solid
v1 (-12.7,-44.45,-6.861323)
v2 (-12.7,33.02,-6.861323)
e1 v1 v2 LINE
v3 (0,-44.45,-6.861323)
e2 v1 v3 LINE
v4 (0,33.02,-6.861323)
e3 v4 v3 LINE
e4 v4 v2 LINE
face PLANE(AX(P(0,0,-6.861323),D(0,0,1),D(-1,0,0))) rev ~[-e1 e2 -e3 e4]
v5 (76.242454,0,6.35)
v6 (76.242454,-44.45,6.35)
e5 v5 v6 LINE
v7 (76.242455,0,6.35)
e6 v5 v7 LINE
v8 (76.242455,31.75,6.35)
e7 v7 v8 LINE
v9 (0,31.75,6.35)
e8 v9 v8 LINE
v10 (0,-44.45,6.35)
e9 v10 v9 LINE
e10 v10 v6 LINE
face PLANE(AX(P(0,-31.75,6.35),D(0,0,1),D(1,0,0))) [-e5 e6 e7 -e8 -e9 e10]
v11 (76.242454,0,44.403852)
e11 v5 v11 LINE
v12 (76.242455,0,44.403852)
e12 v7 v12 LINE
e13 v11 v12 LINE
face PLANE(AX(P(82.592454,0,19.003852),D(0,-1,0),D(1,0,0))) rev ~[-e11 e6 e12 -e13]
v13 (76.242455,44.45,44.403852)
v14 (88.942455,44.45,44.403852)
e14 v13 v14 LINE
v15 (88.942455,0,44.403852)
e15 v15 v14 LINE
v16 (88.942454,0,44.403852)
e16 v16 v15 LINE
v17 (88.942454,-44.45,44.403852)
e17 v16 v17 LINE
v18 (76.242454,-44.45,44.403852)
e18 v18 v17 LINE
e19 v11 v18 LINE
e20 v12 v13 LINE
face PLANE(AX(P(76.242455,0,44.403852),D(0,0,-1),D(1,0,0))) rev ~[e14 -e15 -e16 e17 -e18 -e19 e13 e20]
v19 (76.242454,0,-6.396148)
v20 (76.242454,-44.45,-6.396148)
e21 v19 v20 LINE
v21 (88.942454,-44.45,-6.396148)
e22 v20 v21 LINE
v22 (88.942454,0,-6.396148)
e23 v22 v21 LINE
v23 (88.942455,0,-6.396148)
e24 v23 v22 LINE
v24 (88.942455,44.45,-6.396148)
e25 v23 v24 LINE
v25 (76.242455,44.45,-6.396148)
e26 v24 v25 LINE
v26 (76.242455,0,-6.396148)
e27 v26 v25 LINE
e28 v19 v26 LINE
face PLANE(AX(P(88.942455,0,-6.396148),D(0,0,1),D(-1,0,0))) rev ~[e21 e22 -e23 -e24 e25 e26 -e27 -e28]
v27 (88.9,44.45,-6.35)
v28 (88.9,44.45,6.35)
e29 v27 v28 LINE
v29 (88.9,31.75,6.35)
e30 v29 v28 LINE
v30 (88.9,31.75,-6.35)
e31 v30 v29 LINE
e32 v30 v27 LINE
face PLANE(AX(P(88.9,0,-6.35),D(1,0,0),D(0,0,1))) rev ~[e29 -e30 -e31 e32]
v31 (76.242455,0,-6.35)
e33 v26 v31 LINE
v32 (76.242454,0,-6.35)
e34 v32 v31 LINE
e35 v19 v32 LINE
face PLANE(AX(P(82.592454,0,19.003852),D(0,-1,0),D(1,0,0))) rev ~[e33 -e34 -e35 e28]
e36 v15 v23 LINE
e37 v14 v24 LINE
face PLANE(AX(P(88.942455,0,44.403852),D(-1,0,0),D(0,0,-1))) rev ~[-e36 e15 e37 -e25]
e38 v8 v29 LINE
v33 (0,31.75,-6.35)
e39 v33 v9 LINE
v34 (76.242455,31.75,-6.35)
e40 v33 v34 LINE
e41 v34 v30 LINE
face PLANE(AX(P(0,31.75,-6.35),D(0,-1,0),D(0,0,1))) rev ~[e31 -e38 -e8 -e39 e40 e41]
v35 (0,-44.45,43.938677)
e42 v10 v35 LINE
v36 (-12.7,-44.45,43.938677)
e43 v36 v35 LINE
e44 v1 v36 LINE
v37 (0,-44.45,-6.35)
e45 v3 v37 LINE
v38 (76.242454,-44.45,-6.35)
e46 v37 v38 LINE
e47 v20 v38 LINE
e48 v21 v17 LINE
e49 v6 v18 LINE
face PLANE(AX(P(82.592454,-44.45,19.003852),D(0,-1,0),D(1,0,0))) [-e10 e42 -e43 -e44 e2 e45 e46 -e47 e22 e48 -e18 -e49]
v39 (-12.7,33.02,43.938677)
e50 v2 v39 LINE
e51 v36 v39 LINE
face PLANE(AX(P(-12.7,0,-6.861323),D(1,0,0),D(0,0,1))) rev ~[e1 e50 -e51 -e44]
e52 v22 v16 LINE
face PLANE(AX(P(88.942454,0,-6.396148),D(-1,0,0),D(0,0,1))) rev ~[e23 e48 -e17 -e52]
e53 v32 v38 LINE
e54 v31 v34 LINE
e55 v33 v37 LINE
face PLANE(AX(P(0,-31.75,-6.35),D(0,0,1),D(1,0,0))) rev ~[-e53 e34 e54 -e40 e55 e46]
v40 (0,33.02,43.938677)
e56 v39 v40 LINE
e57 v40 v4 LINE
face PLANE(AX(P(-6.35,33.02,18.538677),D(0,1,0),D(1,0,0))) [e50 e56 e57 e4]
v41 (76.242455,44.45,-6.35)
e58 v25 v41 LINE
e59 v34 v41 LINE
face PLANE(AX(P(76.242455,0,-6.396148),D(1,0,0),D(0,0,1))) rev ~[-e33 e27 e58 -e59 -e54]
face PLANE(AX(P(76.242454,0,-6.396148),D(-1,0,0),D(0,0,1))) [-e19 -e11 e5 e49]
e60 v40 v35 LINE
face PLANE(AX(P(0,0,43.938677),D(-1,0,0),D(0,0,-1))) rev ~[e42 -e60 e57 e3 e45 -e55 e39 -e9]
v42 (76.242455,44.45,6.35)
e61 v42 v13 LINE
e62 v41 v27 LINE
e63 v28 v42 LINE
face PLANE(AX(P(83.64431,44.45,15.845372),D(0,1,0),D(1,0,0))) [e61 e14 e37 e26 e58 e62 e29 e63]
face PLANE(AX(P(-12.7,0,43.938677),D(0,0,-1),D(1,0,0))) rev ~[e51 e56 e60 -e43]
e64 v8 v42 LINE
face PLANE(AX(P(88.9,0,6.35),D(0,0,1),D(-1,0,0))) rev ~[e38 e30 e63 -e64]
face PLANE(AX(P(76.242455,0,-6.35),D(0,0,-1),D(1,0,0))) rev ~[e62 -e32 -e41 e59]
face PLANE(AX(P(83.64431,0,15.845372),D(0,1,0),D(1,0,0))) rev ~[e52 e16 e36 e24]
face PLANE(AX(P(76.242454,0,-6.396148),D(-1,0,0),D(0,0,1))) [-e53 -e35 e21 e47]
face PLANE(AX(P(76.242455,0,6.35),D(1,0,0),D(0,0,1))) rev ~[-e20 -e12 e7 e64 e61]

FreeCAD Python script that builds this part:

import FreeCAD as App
import Part
import Sketcher
from FreeCAD import Vector
Q = App.Units.Quantity

doc = App.newDocument("Part")
body = doc.addObject("PartDesign::Body", "Body")

# Sketch on YZ plane
sketch1 = body.newObject("Sketcher::SketchObject", "Sketch")
sketch1.AttachmentSupport = (doc.getObject("YZ_Plane"), [""])
sketch1.MapMode = "FlatFace"
sketch1.addGeometry(Part.LineSegment(Vector(-32, 6, 0), Vector(-32, -6, 0)), False)
sketch1.addGeometry(Part.LineSegment(Vector(-32, -6, 0), Vector(32, -6, 0)), False)
sketch1.addGeometry(Part.LineSegment(Vector(32, -6, 0), Vector(32, 6, 0)), False)
sketch1.addGeometry(Part.LineSegment(Vector(32, 6, 0), Vector(-32, 6, 0)), False)
sketch1.addConstraint(Sketcher.Constraint("Coincident", 0, 2, 1, 1))
sketch1.addConstraint(Sketcher.Constraint("Coincident", 1, 2, 2, 1))
sketch1.addConstraint(Sketcher.Constraint("Coincident", 2, 2, 3, 1))
sketch1.addConstraint(Sketcher.Constraint("Coincident", 3, 2, 0, 1))
sketch1.addConstraint(Sketcher.Constraint("Vertical", 0))
sketch1.addConstraint(Sketcher.Constraint("Horizontal", 1))
sketch1.addConstraint(Sketcher.Constraint("Vertical", 2))
sketch1.addConstraint(Sketcher.Constraint("Horizontal", 3))
sketch1.addConstraint(Sketcher.Constraint("Symmetric", 0, 2, 2, 2, -1, 1))
sketch1.addConstraint(Sketcher.Constraint("DistanceX", 1, 1, 1, 2, Q("2.5 in")))
sketch1.addConstraint(Sketcher.Constraint("DistanceY", 0, 2, 0, 1, Q("0.5 in")))
pad1 = body.newObject("PartDesign::Pad", "Pad")
pad1.Profile = sketch1
pad1.Length = Q("3.5 in")

# Sketch on XZ plane
sketch2 = body.newObject("Sketcher::SketchObject", "Sketch001")
sketch2.AttachmentSupport = (doc.getObject("XZ_Plane"), [""])
sketch2.MapMode = "FlatFace"
sketch2.addGeometry(Part.LineSegment(Vector(-13, 44, 0), Vector(-13, -7, 0)), False)
sketch2.addGeometry(Part.LineSegment(Vector(-13, -7, 0), Vector(0, -7, 0)), False)
sketch2.addGeometry(Part.LineSegment(Vector(0, -7, 0), Vector(0, 44, 0)), False)
sketch2.addGeometry(Part.LineSegment(Vector(0, 44, 0), Vector(-13, 44, 0)), False)
sketch2.addConstraint(Sketcher.Constraint("Coincident", 0, 2, 1, 1))
sketch2.addConstraint(Sketcher.Constraint("Coincident", 1, 2, 2, 1))
sketch2.addConstraint(Sketcher.Constraint("Coincident", 2, 2, 3, 1))
sketch2.addConstraint(Sketcher.Constraint("Coincident", 3, 2, 0, 1))
sketch2.addConstraint(Sketcher.Constraint("Vertical", 0))
sketch2.addConstraint(Sketcher.Constraint("Horizontal", 1))
sketch2.addConstraint(Sketcher.Constraint("Vertical", 2))
sketch2.addConstraint(Sketcher.Constraint("Horizontal", 3))
sketch2.addConstraint(Sketcher.Constraint("PointOnObject", 1, 2, -2))
sketch2.addConstraint(Sketcher.Constraint("DistanceY", 0, 2, 0, 1, Q("2 in")))
sketch2.addConstraint(Sketcher.Constraint("DistanceX", 1, 1, 1, 2, Q("0.5 in")))
sketch2.addConstraint(Sketcher.Constraint("DistanceY", 0, 2, -1, 1, 6.861323))
pad2 = body.newObject("PartDesign::Pad", "Pad001")
pad2.Profile = sketch2
pad2.Length = Q("1.75 in")

# Sketch on XZ plane
sketch3 = body.newObject("Sketcher::SketchObject", "Sketch002")
sketch3.AttachmentSupport = (doc.getObject("XZ_Plane"), [""])
sketch3.MapMode = "FlatFace"
sketch3.AttachmentOffset = App.Placement(Vector(0, 0, 1.25 * 25.4), App.Rotation())
sketch3.addGeometry(Part.LineSegment(Vector(0, 6, 0), Vector(0, -6, 0)), False)
sketch3.addGeometry(Part.LineSegment(Vector(0, -6, 0), Vector(89, -6, 0)), False)
sketch3.addGeometry(Part.LineSegment(Vector(89, -6, 0), Vector(89, 6, 0)), False)
sketch3.addGeometry(Part.LineSegment(Vector(89, 6, 0), Vector(0, 6, 0)), False)
sketch3.addConstraint(Sketcher.Constraint("Coincident", 0, 2, 1, 1))
sketch3.addConstraint(Sketcher.Constraint("Coincident", 1, 2, 2, 1))
sketch3.addConstraint(Sketcher.Constraint("Coincident", 2, 2, 3, 1))
sketch3.addConstraint(Sketcher.Constraint("Coincident", 3, 2, 0, 1))
sketch3.addConstraint(Sketcher.Constraint("Vertical", 0))
sketch3.addConstraint(Sketcher.Constraint("Horizontal", 1))
sketch3.addConstraint(Sketcher.Constraint("Vertical", 2))
sketch3.addConstraint(Sketcher.Constraint("Horizontal", 3))
sketch3.addConstraint(Sketcher.Constraint("Symmetric", 0, 2, 3, 2, -1, 1))
sketch3.addConstraint(Sketcher.Constraint("DistanceX", 1, 1, 1, 2, Q("3.5 in")))
sketch3.addConstraint(Sketcher.Constraint("DistanceY", 0, 2, 0, 1, Q("0.5 in")))
pad3 = body.newObject("PartDesign::Pad", "Pad002")
pad3.Profile = sketch3
pad3.Length = Q("0.5 in")

# Sketch on XZ plane
sketch4 = body.newObject("Sketcher::SketchObject", "Sketch003")
sketch4.AttachmentSupport = (doc.getObject("XZ_Plane"), [""])
sketch4.MapMode = "FlatFace"
sketch4.addGeometry(Part.LineSegment(Vector(0, -7, 0), Vector(-13, -7, 0)), False)
sketch4.addGeometry(Part.LineSegment(Vector(-13, -7, 0), Vector(-13, 44, 0)), False)
sketch4.addGeometry(Part.LineSegment(Vector(-13, 44, 0), Vector(0, 44, 0)), False)
sketch4.addGeometry(Part.LineSegment(Vector(0, 44, 0), Vector(0, -7, 0)), False)
sketch4.addConstraint(Sketcher.Constraint("Coincident", 0, 2, 1, 1))
sketch4.addConstraint(Sketcher.Constraint("Coincident", 1, 2, 2, 1))
sketch4.addConstraint(Sketcher.Constraint("Coincident", 2, 2, 3, 1))
sketch4.addConstraint(Sketcher.Constraint("Coincident", 3, 2, 0, 1))
sketch4.addConstraint(Sketcher.Constraint("Horizontal", 0))
sketch4.addConstraint(Sketcher.Constraint("Vertical", 1))
sketch4.addConstraint(Sketcher.Constraint("Horizontal", 2))
sketch4.addConstraint(Sketcher.Constraint("Vertical", 3))
sketch4.addConstraint(Sketcher.Constraint("PointOnObject", 2, 2, -2))
sketch4.addConstraint(Sketcher.Constraint("DistanceY", 1, 1, 1, 2, Q("2 in")))
sketch4.addConstraint(Sketcher.Constraint("DistanceX", 0, 2, 0, 1, Q("0.5 in")))
sketch4.addConstraint(Sketcher.Constraint("DistanceY", 0, 2, -1, 1, 6.861323))
pad4 = body.newObject("PartDesign::Pad", "Pad003")
pad4.Profile = sketch4
pad4.Length = Q("1.3 in")
pad4.Reversed = True

# Sketch on XZ plane
sketch5 = body.newObject("Sketcher::SketchObject", "Sketch004")
sketch5.AttachmentSupport = (doc.getObject("XZ_Plane"), [""])
sketch5.MapMode = "FlatFace"
sketch5.addGeometry(Part.LineSegment(Vector(76, 44, 0), Vector(76, -6, 0)), False)
sketch5.addGeometry(Part.LineSegment(Vector(76, -6, 0), Vector(89, -6, 0)), False)
sketch5.addGeometry(Part.LineSegment(Vector(89, -6, 0), Vector(89, 44, 0)), False)
sketch5.addGeometry(Part.LineSegment(Vector(89, 44, 0), Vector(76, 44, 0)), False)
sketch5.addConstraint(Sketcher.Constraint("Coincident", 0, 2, 1, 1))
sketch5.addConstraint(Sketcher.Constraint("Coincident", 1, 2, 2, 1))
sketch5.addConstraint(Sketcher.Constraint("Coincident", 2, 2, 3, 1))
sketch5.addConstraint(Sketcher.Constraint("Coincident", 3, 2, 0, 1))
sketch5.addConstraint(Sketcher.Constraint("Vertical", 0))
sketch5.addConstraint(Sketcher.Constraint("Horizontal", 1))
sketch5.addConstraint(Sketcher.Constraint("Vertical", 2))
sketch5.addConstraint(Sketcher.Constraint("Horizontal", 3))
sketch5.addConstraint(Sketcher.Constraint("DistanceY", 0, 2, 0, 1, Q("2 in")))
sketch5.addConstraint(Sketcher.Constraint("DistanceX", 1, 1, 1, 2, Q("0.5 in")))
sketch5.addConstraint(Sketcher.Constraint("DistanceY", 0, 2, -1, 1, 6.396148))
sketch5.addConstraint(Sketcher.Constraint("DistanceX", -1, 1, 0, 2, 76.242454))
pad5 = body.newObject("PartDesign::Pad", "Pad004")
pad5.Profile = sketch5
pad5.Length = Q("1.75 in")

# Sketch on XZ plane
sketch6 = body.newObject("Sketcher::SketchObject", "Sketch005")
sketch6.AttachmentSupport = (doc.getObject("XZ_Plane"), [""])
sketch6.MapMode = "FlatFace"
sketch6.addGeometry(Part.LineSegment(Vector(76.242, 44.404, 0), Vector(88.942, 44.404, 0)), False)
sketch6.addGeometry(Part.LineSegment(Vector(88.942, 44.404, 0), Vector(88.942, -6.396, 0)), False)
sketch6.addGeometry(Part.LineSegment(Vector(88.942, -6.396, 0), Vector(76.242, -6.396, 0)), False)
sketch6.addGeometry(Part.LineSegment(Vector(76.242, -6.396, 0), Vector(76.242, -6.35, 0)), False)
sketch6.addGeometry(Part.LineSegment(Vector(76.242, -6.35, 0), Vector(88.9, -6.35, 0)), False)
sketch6.addGeometry(Part.LineSegment(Vector(88.9, -6.35, 0), Vector(88.9, 6.35, 0)), False)
sketch6.addGeometry(Part.LineSegment(Vector(88.9, 6.35, 0), Vector(76.242, 6.35, 0)), False)
sketch6.addGeometry(Part.LineSegment(Vector(76.242, 6.35, 0), Vector(76.242, 44.404, 0)), False)
sketch6.addConstraint(Sketcher.Constraint("Coincident", 0, 2, 1, 1))
sketch6.addConstraint(Sketcher.Constraint("Coincident", 1, 2, 2, 1))
sketch6.addConstraint(Sketcher.Constraint("Coincident", 2, 2, 3, 1))
sketch6.addConstraint(Sketcher.Constraint("Coincident", 3, 2, 4, 1))
sketch6.addConstraint(Sketcher.Constraint("Coincident", 4, 2, 5, 1))
sketch6.addConstraint(Sketcher.Constraint("Coincident", 5, 2, 6, 1))
sketch6.addConstraint(Sketcher.Constraint("Coincident", 6, 2, 7, 1))
sketch6.addConstraint(Sketcher.Constraint("Coincident", 7, 2, 0, 1))
sketch6.addConstraint(Sketcher.Constraint("Horizontal", 0))
sketch6.addConstraint(Sketcher.Constraint("Vertical", 1))
sketch6.addConstraint(Sketcher.Constraint("Horizontal", 2))
sketch6.addConstraint(Sketcher.Constraint("Vertical", 3))
sketch6.addConstraint(Sketcher.Constraint("Horizontal", 4))
sketch6.addConstraint(Sketcher.Constraint("Vertical", 5))
sketch6.addConstraint(Sketcher.Constraint("Horizontal", 6))
sketch6.addConstraint(Sketcher.Constraint("Vertical", 7))
sketch6.addConstraint(Sketcher.Constraint("Symmetric", 3, 2, 6, 2, -1))
sketch6.addConstraint(Sketcher.Constraint("Equal", 2, 5))
sketch6.addConstraint(Sketcher.Constraint("DistanceY", 1, 2, 1, 1, Q("2 in")))
sketch6.addConstraint(Sketcher.Constraint("DistanceX", 0, 1, 0, 2, Q("0.5 in")))
sketch6.addConstraint(Sketcher.Constraint("DistanceX", -1, 1, 4, 2, Q("3.5 in")))
sketch6.addConstraint(Sketcher.Constraint("DistanceY", 3, 1, 3, 2, 0.046148))
sketch6.addConstraint(Sketcher.Constraint("DistanceX", 4, 1, 4, 2, 12.657545))
pad6 = body.newObject("PartDesign::Pad", "Pad005")
pad6.Profile = sketch6
pad6.Length = Q("1.75 in")
pad6.Reversed = True

doc.recompute()
